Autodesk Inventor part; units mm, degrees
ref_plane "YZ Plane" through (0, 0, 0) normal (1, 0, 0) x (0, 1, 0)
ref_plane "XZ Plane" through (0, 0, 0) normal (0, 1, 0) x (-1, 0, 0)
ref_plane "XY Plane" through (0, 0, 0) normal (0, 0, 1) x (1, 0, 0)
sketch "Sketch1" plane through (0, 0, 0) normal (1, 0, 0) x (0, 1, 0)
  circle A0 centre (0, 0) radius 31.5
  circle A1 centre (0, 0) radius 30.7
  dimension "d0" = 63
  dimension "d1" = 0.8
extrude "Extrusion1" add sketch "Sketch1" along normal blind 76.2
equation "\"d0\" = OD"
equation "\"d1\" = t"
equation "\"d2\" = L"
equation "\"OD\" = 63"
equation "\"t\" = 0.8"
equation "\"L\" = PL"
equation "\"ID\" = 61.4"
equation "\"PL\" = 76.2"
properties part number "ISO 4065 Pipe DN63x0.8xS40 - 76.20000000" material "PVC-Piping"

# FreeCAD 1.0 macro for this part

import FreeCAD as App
import Part
import Sketcher

V = App.Vector
Q = App.Units.Quantity

doc = App.newDocument("Part")
body = doc.addObject("PartDesign::Body", "Body")

# Sketch on YZ plane
sketch1 = doc.addObject("Sketcher::SketchObject", "Sketch")
body.addObject(sketch1)
sketch1.AttachmentSupport = (doc.YZ_Plane, [""])
sketch1.MapMode = "FlatFace"
sketch1.addGeometry(Part.Circle(V(0, 0, 0), V(0, 0, 1), 32), False)
sketch1.addGeometry(Part.Circle(V(0, 0, 0), V(0, 0, 1), 31), False)
sketch1.addConstraint(Sketcher.Constraint("Coincident", 0, 3, -1, 1))
sketch1.addConstraint(Sketcher.Constraint("Coincident", 1, 3, -1, 1))
sketch1.addConstraint(Sketcher.Constraint("Diameter", 0, Q("63 mm")))
sketch1.addConstraint(Sketcher.Constraint("Diameter", 1, Q("61.4 mm")))
pad1 = doc.addObject("PartDesign::Pad", "Pad")
body.addObject(pad1)
pad1.Profile = sketch1
pad1.Length = 76.2

doc.recompute()
